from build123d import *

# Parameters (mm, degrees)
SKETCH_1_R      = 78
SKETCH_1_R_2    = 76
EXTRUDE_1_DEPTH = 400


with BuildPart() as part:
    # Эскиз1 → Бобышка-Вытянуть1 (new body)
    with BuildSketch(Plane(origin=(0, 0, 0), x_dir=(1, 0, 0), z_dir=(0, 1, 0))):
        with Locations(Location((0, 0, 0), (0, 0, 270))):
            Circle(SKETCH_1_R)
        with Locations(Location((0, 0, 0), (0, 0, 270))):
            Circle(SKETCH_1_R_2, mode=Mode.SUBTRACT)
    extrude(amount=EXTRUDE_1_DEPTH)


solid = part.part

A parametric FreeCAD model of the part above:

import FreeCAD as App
import Part
import Sketcher

V = App.Vector

doc = App.newDocument("Part")
body = doc.addObject("PartDesign::Body", "Body")

# Sketch on XZ plane
sketch1 = body.newObject("Sketcher::SketchObject", "Sketch")
sketch1.AttachmentSupport = (doc.getObject("XZ_Plane"), [""])
sketch1.MapMode = "FlatFace"
sketch1.addGeometry(Part.Circle(V(0, 0, 0), V(0, 0, 1), 78), False)
sketch1.addGeometry(Part.Circle(V(0, 0, 0), V(0, 0, 1), 76), False)
sketch1.addConstraint(Sketcher.Constraint("Coincident", 0, 3, -1, 1))
sketch1.addConstraint(Sketcher.Constraint("Coincident", 1, 3, -1, 1))
sketch1.addConstraint(Sketcher.Constraint("Diameter", 0, 156.0))
sketch1.addConstraint(Sketcher.Constraint("Diameter", 1, 152.0))
pad1 = body.newObject("PartDesign::Pad", "Pad")
pad1.Profile = sketch1
pad1.Length = 400
pad1.Reversed = True

doc.recompute()
